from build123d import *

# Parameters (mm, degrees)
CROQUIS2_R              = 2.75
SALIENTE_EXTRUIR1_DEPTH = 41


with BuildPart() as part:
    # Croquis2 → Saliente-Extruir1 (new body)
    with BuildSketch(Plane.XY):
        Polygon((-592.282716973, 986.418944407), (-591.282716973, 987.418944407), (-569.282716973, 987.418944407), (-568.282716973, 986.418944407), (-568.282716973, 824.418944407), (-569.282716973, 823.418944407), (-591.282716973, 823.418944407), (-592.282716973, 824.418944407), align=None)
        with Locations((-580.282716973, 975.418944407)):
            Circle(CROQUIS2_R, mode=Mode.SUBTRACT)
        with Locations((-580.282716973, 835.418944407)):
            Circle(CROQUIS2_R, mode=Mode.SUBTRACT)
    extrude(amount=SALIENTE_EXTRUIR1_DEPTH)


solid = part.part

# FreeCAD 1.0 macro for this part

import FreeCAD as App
import Part
import Sketcher

V = App.Vector
Q = App.Units.Quantity

doc = App.newDocument("Part")
body = doc.addObject("PartDesign::Body", "Body")

# Sketch on XY plane
sketch1 = doc.addObject("Sketcher::SketchObject", "Sketch")
body.addObject(sketch1)
sketch1.AttachmentSupport = (doc.XY_Plane, [""])
sketch1.MapMode = "FlatFace"
sketch1.addGeometry(Part.LineSegment(V(-591.3, 987.4, 0), V(-592.3, 986.4, 0)), False)
sketch1.addGeometry(Part.LineSegment(V(-592.3, 986.4, 0), V(-592.3, 824.4, 0)), False)
sketch1.addGeometry(Part.LineSegment(V(-592.3, 824.4, 0), V(-591.3, 823.4, 0)), False)
sketch1.addGeometry(Part.LineSegment(V(-591.3, 823.4, 0), V(-569.3, 823.4, 0)), False)
sketch1.addGeometry(Part.LineSegment(V(-569.3, 823.4, 0), V(-568.3, 824.4, 0)), False)
sketch1.addGeometry(Part.LineSegment(V(-568.3, 824.4, 0), V(-568.3, 986.4, 0)), False)
sketch1.addGeometry(Part.LineSegment(V(-568.3, 986.4, 0), V(-569.3, 987.4, 0)), False)
sketch1.addGeometry(Part.LineSegment(V(-569.3, 987.4, 0), V(-591.3, 987.4, 0)), False)
sketch1.addGeometry(Part.Circle(V(-580.3, 835.4, 0), V(0, 0, 1), 2.8), False)
sketch1.addGeometry(Part.Circle(V(-580.3, 975.4, 0), V(0, 0, 1), 2.8), False)
sketch1.addConstraint(Sketcher.Constraint("Coincident", 0, 2, 1, 1))
sketch1.addConstraint(Sketcher.Constraint("Coincident", 1, 2, 2, 1))
sketch1.addConstraint(Sketcher.Constraint("Coincident", 2, 2, 3, 1))
sketch1.addConstraint(Sketcher.Constraint("Coincident", 3, 2, 4, 1))
sketch1.addConstraint(Sketcher.Constraint("Coincident", 4, 2, 5, 1))
sketch1.addConstraint(Sketcher.Constraint("Coincident", 5, 2, 6, 1))
sketch1.addConstraint(Sketcher.Constraint("Coincident", 6, 2, 7, 1))
sketch1.addConstraint(Sketcher.Constraint("Coincident", 7, 2, 0, 1))
sketch1.addConstraint(Sketcher.Constraint("Vertical", 1))
sketch1.addConstraint(Sketcher.Constraint("Horizontal", 3))
sketch1.addConstraint(Sketcher.Constraint("Vertical", 5))
sketch1.addConstraint(Sketcher.Constraint("Horizontal", 7))
sketch1.addConstraint(Sketcher.Constraint("Equal", 8, 9))
sketch1.addConstraint(Sketcher.Constraint("Perpendicular", 0, 2))
sketch1.addConstraint(Sketcher.Constraint("Perpendicular", 2, 4))
sketch1.addConstraint(Sketcher.Constraint("Perpendicular", 4, 6))
sketch1.addConstraint(Sketcher.Constraint("Horizontal", 1, 2, 4, 2))
sketch1.addConstraint(Sketcher.Constraint("Horizontal", 0, 2, 5, 2))
sketch1.addConstraint(Sketcher.Constraint("Vertical", 8, 3, 9, 3))
sketch1.addConstraint(Sketcher.Constraint("Vertical", 3, 2, 6, 2))
sketch1.addConstraint(Sketcher.Constraint("Vertical", 2, 2, 7, 2))
sketch1.addConstraint(Sketcher.Constraint("Diameter", 8, Q("5.5 mm")))
sketch1.addConstraint(Sketcher.Constraint("DistanceX", 3, 1, 3, 2, Q("22 mm")))
sketch1.addConstraint(Sketcher.Constraint("DistanceY", 1, 2, 1, 1, Q("162 mm")))
sketch1.addConstraint(Sketcher.Constraint("DistanceY", 8, 3, 9, 3, Q("140 mm")))
sketch1.addConstraint(Sketcher.Constraint("DistanceX", 0, 2, 9, 3, Q("12 mm")))
sketch1.addConstraint(Sketcher.Constraint("DistanceY", 9, 3, 0, 2, Q("11 mm")))
sketch1.addConstraint(Sketcher.Constraint("DistanceX", 1, 2, 2, 2, Q("1 mm")))
sketch1.addConstraint(Sketcher.Constraint("DistanceX", 8, 3, -1, 1, Q("580.282717 mm")))
sketch1.addConstraint(Sketcher.Constraint("DistanceY", -1, 1, 8, 3, Q("835.418944 mm")))
pad1 = doc.addObject("PartDesign::Pad", "Pad")
body.addObject(pad1)
pad1.Profile = sketch1
pad1.Length = 41

doc.recompute()
